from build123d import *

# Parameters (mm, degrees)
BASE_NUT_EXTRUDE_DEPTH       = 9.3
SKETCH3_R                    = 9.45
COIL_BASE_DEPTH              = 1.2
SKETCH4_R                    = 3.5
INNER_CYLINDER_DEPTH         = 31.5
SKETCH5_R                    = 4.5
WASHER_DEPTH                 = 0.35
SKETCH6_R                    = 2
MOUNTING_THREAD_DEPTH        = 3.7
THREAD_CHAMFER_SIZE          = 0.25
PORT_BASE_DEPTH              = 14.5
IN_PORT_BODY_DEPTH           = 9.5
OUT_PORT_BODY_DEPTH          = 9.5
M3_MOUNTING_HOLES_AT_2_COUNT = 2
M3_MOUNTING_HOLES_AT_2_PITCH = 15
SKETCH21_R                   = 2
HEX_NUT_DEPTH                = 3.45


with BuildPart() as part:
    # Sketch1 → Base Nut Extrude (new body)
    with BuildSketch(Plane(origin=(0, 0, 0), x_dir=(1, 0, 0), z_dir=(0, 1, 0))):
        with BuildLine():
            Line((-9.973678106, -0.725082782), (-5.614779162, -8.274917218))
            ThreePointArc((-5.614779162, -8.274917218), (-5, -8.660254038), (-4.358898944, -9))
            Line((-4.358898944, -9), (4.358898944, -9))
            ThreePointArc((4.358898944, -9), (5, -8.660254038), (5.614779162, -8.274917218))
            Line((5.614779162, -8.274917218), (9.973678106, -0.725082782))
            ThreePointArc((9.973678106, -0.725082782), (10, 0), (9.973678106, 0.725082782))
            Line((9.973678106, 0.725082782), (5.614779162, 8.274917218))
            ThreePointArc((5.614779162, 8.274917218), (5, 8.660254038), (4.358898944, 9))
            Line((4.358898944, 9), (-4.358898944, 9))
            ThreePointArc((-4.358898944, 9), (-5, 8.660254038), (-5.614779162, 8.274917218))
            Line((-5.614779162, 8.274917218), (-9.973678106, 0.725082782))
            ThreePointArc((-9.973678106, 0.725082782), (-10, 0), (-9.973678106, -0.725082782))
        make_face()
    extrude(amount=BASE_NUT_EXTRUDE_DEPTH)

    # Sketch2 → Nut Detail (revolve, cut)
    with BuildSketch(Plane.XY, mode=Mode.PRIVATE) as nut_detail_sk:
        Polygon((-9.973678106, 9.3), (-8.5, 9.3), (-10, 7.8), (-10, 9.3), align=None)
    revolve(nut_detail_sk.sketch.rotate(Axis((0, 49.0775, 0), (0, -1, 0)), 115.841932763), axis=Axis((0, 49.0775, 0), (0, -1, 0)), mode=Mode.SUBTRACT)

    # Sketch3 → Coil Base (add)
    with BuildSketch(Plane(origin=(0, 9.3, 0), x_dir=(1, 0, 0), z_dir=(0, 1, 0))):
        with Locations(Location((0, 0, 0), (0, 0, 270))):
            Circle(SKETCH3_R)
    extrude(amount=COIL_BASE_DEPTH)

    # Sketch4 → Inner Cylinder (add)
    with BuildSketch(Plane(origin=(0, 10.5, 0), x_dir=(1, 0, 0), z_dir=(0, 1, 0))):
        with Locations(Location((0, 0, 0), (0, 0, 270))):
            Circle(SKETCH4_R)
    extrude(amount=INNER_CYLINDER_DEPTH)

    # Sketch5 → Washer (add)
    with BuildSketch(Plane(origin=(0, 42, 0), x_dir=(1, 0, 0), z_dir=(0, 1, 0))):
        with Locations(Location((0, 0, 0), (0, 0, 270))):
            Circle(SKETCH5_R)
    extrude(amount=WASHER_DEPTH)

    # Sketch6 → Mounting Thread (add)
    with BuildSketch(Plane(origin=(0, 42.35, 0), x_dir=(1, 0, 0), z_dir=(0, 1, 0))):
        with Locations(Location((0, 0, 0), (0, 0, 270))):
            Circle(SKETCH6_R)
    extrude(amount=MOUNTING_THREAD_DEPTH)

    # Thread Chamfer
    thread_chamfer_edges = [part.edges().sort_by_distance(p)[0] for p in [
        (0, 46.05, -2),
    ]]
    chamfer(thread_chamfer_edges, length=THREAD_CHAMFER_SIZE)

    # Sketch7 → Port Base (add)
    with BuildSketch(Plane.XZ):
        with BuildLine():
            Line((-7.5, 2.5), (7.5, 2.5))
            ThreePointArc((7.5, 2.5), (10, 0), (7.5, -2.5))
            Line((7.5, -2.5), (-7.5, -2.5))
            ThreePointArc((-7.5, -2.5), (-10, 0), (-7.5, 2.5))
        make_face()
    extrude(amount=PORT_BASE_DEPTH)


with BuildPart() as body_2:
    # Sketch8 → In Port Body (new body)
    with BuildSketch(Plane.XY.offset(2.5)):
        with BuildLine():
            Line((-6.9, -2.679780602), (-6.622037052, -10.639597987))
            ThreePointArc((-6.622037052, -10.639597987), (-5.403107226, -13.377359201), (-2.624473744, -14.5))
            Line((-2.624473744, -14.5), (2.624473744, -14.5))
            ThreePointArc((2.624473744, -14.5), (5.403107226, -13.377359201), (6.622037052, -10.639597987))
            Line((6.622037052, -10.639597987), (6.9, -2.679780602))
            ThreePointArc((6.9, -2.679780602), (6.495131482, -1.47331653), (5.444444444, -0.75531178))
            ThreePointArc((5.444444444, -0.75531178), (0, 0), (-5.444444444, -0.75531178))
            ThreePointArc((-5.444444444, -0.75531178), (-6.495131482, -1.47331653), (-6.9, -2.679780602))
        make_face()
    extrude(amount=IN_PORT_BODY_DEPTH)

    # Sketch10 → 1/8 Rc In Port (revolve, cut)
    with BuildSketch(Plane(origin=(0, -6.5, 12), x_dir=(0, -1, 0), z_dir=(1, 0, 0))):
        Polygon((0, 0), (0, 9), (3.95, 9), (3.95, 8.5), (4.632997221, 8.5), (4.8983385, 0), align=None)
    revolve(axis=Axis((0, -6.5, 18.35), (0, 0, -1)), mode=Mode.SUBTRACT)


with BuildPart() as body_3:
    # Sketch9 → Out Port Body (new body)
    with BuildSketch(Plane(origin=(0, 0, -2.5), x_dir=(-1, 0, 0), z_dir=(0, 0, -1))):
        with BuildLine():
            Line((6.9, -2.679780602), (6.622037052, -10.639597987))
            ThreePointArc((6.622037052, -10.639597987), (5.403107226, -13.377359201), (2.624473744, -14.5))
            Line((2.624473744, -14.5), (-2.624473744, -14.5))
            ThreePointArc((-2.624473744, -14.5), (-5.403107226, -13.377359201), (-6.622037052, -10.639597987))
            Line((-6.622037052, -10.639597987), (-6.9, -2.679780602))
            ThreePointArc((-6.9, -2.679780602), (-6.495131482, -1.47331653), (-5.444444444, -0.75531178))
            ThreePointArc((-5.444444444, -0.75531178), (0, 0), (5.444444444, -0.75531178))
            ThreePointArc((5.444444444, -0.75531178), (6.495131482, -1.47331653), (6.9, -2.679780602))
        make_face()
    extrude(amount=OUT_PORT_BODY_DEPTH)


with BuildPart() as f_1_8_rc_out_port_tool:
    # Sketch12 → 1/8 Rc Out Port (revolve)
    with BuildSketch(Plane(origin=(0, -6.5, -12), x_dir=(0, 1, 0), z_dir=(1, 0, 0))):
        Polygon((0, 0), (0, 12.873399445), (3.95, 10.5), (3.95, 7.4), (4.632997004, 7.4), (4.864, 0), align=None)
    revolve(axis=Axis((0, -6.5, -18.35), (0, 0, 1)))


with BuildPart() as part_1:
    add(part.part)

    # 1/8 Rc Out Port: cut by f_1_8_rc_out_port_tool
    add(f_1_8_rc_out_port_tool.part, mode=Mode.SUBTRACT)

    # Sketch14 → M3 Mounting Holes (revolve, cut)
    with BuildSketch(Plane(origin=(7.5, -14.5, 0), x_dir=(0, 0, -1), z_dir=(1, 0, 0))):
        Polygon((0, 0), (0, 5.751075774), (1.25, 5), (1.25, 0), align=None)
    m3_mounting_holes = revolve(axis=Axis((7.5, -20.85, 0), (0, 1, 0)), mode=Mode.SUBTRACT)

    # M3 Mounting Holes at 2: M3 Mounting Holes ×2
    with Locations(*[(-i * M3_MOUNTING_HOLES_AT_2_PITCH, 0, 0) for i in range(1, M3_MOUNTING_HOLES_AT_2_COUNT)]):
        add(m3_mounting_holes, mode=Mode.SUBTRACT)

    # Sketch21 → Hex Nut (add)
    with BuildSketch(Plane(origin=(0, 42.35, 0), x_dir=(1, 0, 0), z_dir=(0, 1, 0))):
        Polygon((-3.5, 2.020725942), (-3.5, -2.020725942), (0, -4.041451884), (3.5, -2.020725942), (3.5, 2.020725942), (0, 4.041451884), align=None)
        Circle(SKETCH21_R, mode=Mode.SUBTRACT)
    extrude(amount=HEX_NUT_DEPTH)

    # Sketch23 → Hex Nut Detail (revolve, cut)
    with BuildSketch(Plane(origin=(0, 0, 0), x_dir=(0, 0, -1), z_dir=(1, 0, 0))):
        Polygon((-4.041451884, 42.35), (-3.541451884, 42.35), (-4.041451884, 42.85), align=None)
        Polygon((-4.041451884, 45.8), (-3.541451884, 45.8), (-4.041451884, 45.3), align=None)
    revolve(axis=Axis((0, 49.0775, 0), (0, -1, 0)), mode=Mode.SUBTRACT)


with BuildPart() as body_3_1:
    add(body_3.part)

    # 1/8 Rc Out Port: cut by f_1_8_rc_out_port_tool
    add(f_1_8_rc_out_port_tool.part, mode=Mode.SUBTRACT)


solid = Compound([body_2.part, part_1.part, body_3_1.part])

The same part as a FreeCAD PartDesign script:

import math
import FreeCAD as App
import Part
import Sketcher

V = App.Vector
Q = App.Units.Quantity


def edges_at(feature, points):
    """Names of the edges that pass closest to the given points."""
    edges = feature.Shape.Edges
    near = lambda p: min(range(len(edges)), key=lambda i: edges[i].distToShape(Part.Vertex(*p))[0])
    return sorted({f"Edge{near(p) + 1}" for p in points})


def add_polygon(sketch, points):
    """Adds a closed chain of lines whose ends are joined by coincident constraints."""
    first, n = sketch.GeometryCount, len(points)
    for a, b in zip(points, points[1:] + points[:1]):
        sketch.addGeometry(Part.LineSegment(App.Vector(*a, 0), App.Vector(*b, 0)), False)
    for i in range(n):
        sketch.addConstraint(Sketcher.Constraint("Coincident", first + i, 2, first + (i + 1) % n, 1))

doc = App.newDocument("Part")
body = doc.addObject("PartDesign::Body", "Body")

# Sketch on XZ plane
sketch1 = body.newObject("Sketcher::SketchObject", "Sketch")
sketch1.AttachmentSupport = (doc.getObject("XZ_Plane"), [""])
sketch1.MapMode = "FlatFace"
sketch1.addGeometry([
    Part.LineSegment(V(-10, 0.7, 0), V(-5.6, 8.3, 0)),  # 0
    Part.ArcOfCircle(Part.Circle(V(0, 0, 0), V(0, 0, 1), 10), math.radians(115.84), math.radians(124.16)),  # 1
    Part.LineSegment(V(-4.4, 9, 0), V(4.4, 9, 0)),  # 2
    Part.ArcOfCircle(Part.Circle(V(0, 0, 0), V(0, 0, 1), 10), math.radians(55.84), math.radians(64.16)),  # 3
    Part.LineSegment(V(5.6, 8.3, 0), V(10, 0.7, 0)),  # 4
    Part.ArcOfCircle(Part.Circle(V(0, 0, 0), V(0, 0, 1), 10), math.radians(-4.16), math.radians(4.16)),  # 5
    Part.LineSegment(V(10, -0.7, 0), V(5.6, -8.3, 0)),  # 6
    Part.ArcOfCircle(Part.Circle(V(0, 0, 0), V(0, 0, 1), 10), math.radians(-64.16), math.radians(-55.84)),  # 7
    Part.LineSegment(V(4.4, -9, 0), V(-4.4, -9, 0)),  # 8
    Part.ArcOfCircle(Part.Circle(V(0, 0, 0), V(0, 0, 1), 10), math.radians(-124.16), math.radians(-115.84)),  # 9
    Part.LineSegment(V(-5.6, -8.3, 0), V(-10, -0.7, 0)),  # 10
    Part.ArcOfCircle(Part.Circle(V(0, 0, 0), V(0, 0, 1), 10), math.radians(175.84), math.radians(184.16)),  # 11
], False)
sketch1.addConstraint([
    Sketcher.Constraint("Coincident", 0, 2, 1, 2),
    Sketcher.Constraint("Coincident", 1, 1, 2, 1),
    Sketcher.Constraint("Coincident", 2, 2, 3, 2),
    Sketcher.Constraint("Coincident", 3, 1, 4, 1),
    Sketcher.Constraint("Coincident", 4, 2, 5, 2),
    Sketcher.Constraint("Coincident", 5, 1, 6, 1),
    Sketcher.Constraint("Coincident", 6, 2, 7, 2),
    Sketcher.Constraint("Coincident", 7, 1, 8, 1),
    Sketcher.Constraint("Coincident", 8, 2, 9, 2),
    Sketcher.Constraint("Coincident", 9, 1, 10, 1),
    Sketcher.Constraint("Coincident", 10, 2, 11, 2),
    Sketcher.Constraint("Coincident", 11, 1, 0, 1),
    Sketcher.Constraint("Horizontal", 2),
    Sketcher.Constraint("Horizontal", 8),
    Sketcher.Constraint("Coincident", 1, 3, -1, 1),
    Sketcher.Constraint("Coincident", 3, 3, -1, 1),
    Sketcher.Constraint("Coincident", 5, 3, -1, 1),
    Sketcher.Constraint("Coincident", 7, 3, -1, 1),
    Sketcher.Constraint("Coincident", 9, 3, -1, 1),
    Sketcher.Constraint("Coincident", 11, 3, -1, 1),
    Sketcher.Constraint("Equal", 1, 3),
    Sketcher.Constraint("Equal", 3, 5),
    Sketcher.Constraint("Equal", 5, 7),
    Sketcher.Constraint("Equal", 7, 9),
    Sketcher.Constraint("Equal", 9, 11),
    Sketcher.Constraint("Parallel", 0, 6),
    Sketcher.Constraint("Parallel", 4, 10),
    Sketcher.Constraint("Horizontal", 0, 2, 3, 1),
    Sketcher.Constraint("Horizontal", 6, 2, 9, 1),
    Sketcher.Constraint("Horizontal", 5, 1, 10, 2),
    Sketcher.Constraint("Vertical", 4, 2, 5, 1),
    Sketcher.Constraint("Vertical", 2, 2, 7, 1),
    Sketcher.Constraint("Radius", 1, Q("10 mm")),
    Sketcher.Constraint("Angle", 0, Q("60 deg")),
    Sketcher.Constraint("DistanceY", -1, 1, 1, 1, Q("9 mm")),
    Sketcher.Constraint("DistanceY", 5, 1, 3, 1, Q("9 mm")),
])
pad1 = body.newObject("PartDesign::Pad", "Pad")
pad1.Profile = sketch1
pad1.Length = 9.3
pad1.Reversed = True

# Sketch on XY plane
sketch2 = body.newObject("Sketcher::SketchObject", "Sketch001")
sketch2.AttachmentSupport = (doc.getObject("XY_Plane"), [""])
sketch2.MapMode = "FlatFace"
add_polygon(sketch2, [(-8.5, 9.3), (-10, 9.3), (-10, 7.8)])  # lines 0-2
sketch2.addConstraint([
    Sketcher.Constraint("Horizontal", 0),
    Sketcher.Constraint("Vertical", 1),
    Sketcher.Constraint("Equal", 0, 1),
    Sketcher.Constraint("DistanceX", 0, 2, 0, 1, Q("1.5 mm")),
    Sketcher.Constraint("DistanceX", 0, 2, -1, 1, Q("10 mm")),
    Sketcher.Constraint("DistanceY", -1, 1, 0, 2, Q("9.3 mm")),
])
groove = body.newObject("PartDesign::Groove", "Groove")
groove.Profile = sketch2
groove.ReferenceAxis = (sketch2, ["V_Axis"])
groove.Angle = 360

# Sketch on XZ plane
sketch3 = body.newObject("Sketcher::SketchObject", "Sketch002")
sketch3.AttachmentSupport = (doc.getObject("XZ_Plane"), [""])
sketch3.MapMode = "FlatFace"
sketch3.AttachmentOffset = App.Placement(V(0, 0, -9.3), App.Rotation())
sketch3.addGeometry(Part.Circle(V(0, 0, 0), V(0, 0, 1), 9), False)
sketch3.addConstraint([
    Sketcher.Constraint("Coincident", 0, 3, -1, 1),
    Sketcher.Constraint("Diameter", 0, Q("18.9 mm")),
])
pad2 = body.newObject("PartDesign::Pad", "Pad001")
pad2.Profile = sketch3
pad2.Length = 1.2
pad2.Reversed = True

# Sketch on XZ plane
sketch4 = body.newObject("Sketcher::SketchObject", "Sketch003")
sketch4.AttachmentSupport = (doc.getObject("XZ_Plane"), [""])
sketch4.MapMode = "FlatFace"
sketch4.AttachmentOffset = App.Placement(V(0, 0, -10.5), App.Rotation())
sketch4.addGeometry(Part.Circle(V(0, 0, 0), V(0, 0, 1), 3.5), False)
sketch4.addConstraint([
    Sketcher.Constraint("Coincident", 0, 3, -1, 1),
    Sketcher.Constraint("Diameter", 0, Q("7 mm")),
])
pad3 = body.newObject("PartDesign::Pad", "Pad002")
pad3.Profile = sketch4
pad3.Length = 31.5
pad3.Reversed = True

# Sketch on XZ plane
sketch5 = body.newObject("Sketcher::SketchObject", "Sketch004")
sketch5.AttachmentSupport = (doc.getObject("XZ_Plane"), [""])
sketch5.MapMode = "FlatFace"
sketch5.AttachmentOffset = App.Placement(V(0, 0, -42), App.Rotation())
sketch5.addGeometry(Part.Circle(V(0, 0, 0), V(0, 0, 1), 4.5), False)
sketch5.addConstraint([
    Sketcher.Constraint("Coincident", 0, 3, -1, 1),
    Sketcher.Constraint("Diameter", 0, Q("9 mm")),
])
pad4 = body.newObject("PartDesign::Pad", "Pad003")
pad4.Profile = sketch5
pad4.Length = 0.35
pad4.Reversed = True

# Sketch on XZ plane
sketch6 = body.newObject("Sketcher::SketchObject", "Sketch005")
sketch6.AttachmentSupport = (doc.getObject("XZ_Plane"), [""])
sketch6.MapMode = "FlatFace"
sketch6.AttachmentOffset = App.Placement(V(0, 0, -42.35), App.Rotation())
sketch6.addGeometry(Part.Circle(V(0, 0, 0), V(0, 0, 1), 2), False)
sketch6.addConstraint([
    Sketcher.Constraint("Coincident", 0, 3, -1, 1),
    Sketcher.Constraint("Diameter", 0, Q("4 mm")),
])
pad5 = body.newObject("PartDesign::Pad", "Pad004")
pad5.Profile = sketch6
pad5.Length = 3.7
pad5.Reversed = True
doc.recompute()

chamfer = body.newObject("PartDesign::Chamfer", "Chamfer")
chamfer.Base = (pad5, edges_at(pad5, [(0, 46.05, -2)]))
chamfer.Size = 0.25

# Sketch on XZ plane
sketch7 = body.newObject("Sketcher::SketchObject", "Sketch006")
sketch7.AttachmentSupport = (doc.getObject("XZ_Plane"), [""])
sketch7.MapMode = "FlatFace"
sketch7.addGeometry([
    Part.LineSegment(V(7.5, 2.5, 0), V(-7.5, 2.5, 0)),
    Part.ArcOfCircle(Part.Circle(V(-7.5, 0, 0), V(0, 0, 1), 2.5), math.radians(90), math.radians(270)),
    Part.LineSegment(V(-7.5, -2.5, 0), V(7.5, -2.5, 0)),
    Part.ArcOfCircle(Part.Circle(V(7.5, 0, 0), V(0, 0, 1), 2.5), math.radians(-90), math.radians(90)),
], False)
sketch7.addConstraint([
    Sketcher.Constraint("Tangent", 0, 2, 1, 1),
    Sketcher.Constraint("Tangent", 1, 2, 2, 1),
    Sketcher.Constraint("Tangent", 2, 2, 3, 1),
    Sketcher.Constraint("Tangent", 3, 2, 0, 1),
    Sketcher.Constraint("Horizontal", 0),
    Sketcher.Constraint("Horizontal", 2),
    Sketcher.Constraint("Symmetric", 1, 3, 3, 3, -1, 1),
    Sketcher.Constraint("Radius", 1, Q("2.5 mm")),
    Sketcher.Constraint("DistanceX", 0, 2, 0, 1, Q("15 mm")),
])
pad6 = body.newObject("PartDesign::Pad", "Pad005")
pad6.Profile = sketch7
pad6.Length = 14.5
body2 = doc.addObject("PartDesign::Body", "Body001")

# Sketch on XY plane
sketch8 = body2.newObject("Sketcher::SketchObject", "Sketch007")
sketch8.AttachmentSupport = (doc.getObject("XY_Plane001"), [""])
sketch8.MapMode = "FlatFace"
sketch8.AttachmentOffset = App.Placement(V(0, 0, 2.5), App.Rotation())
sketch8.addGeometry([
    Part.LineSegment(V(-6.9, -2.7, 0), V(-6.6, -10.6, 0)),  # 0
    Part.ArcOfCircle(Part.Circle(V(-2.6, -10.5, 0), V(0, 0, 1), 4), math.radians(-178), math.radians(-90)),  # 1
    Part.LineSegment(V(-2.6, -14.5, 0), V(2.6, -14.5, 0)),  # 2
    Part.ArcOfCircle(Part.Circle(V(2.6, -10.5, 0), V(0, 0, 1), 4), math.radians(-90), math.radians(-2)),  # 3
    Part.LineSegment(V(6.6, -10.6, 0), V(6.9, -2.7, 0)),  # 4
    Part.ArcOfCircle(Part.Circle(V(4.9, -2.7, 0), V(0, 0, 1), 2), math.radians(0), math.radians(74)),  # 5
    Part.ArcOfCircle(Part.Circle(V(0, -20, 0), V(0, 0, 1), 20), math.radians(74), math.radians(106)),  # 6
    Part.ArcOfCircle(Part.Circle(V(-4.9, -2.7, 0), V(0, 0, 1), 2), math.radians(106), math.radians(180)),  # 7
], False)
sketch8.addConstraint([
    Sketcher.Constraint("Tangent", 0, 2, 1, 1),
    Sketcher.Constraint("Tangent", 1, 2, 2, 1),
    Sketcher.Constraint("Tangent", 2, 2, 3, 1),
    Sketcher.Constraint("Tangent", 3, 2, 4, 1),
    Sketcher.Constraint("Coincident", 4, 2, 5, 1),
    Sketcher.Constraint("Tangent", 5, 2, 6, 1),
    Sketcher.Constraint("Tangent", 6, 2, 7, 1),
    Sketcher.Constraint("Coincident", 7, 2, 0, 1),
    Sketcher.Constraint("Horizontal", 2),
    Sketcher.Constraint("Equal", 1, 3),
    Sketcher.Constraint("Equal", 5, 7),
    Sketcher.Constraint("Symmetric", 5, 3, 7, 3, -2),
    Sketcher.Constraint("Symmetric", 0, 2, 3, 2, -2),
    Sketcher.Constraint("Horizontal", 7, 3, 4, 2),
    Sketcher.Constraint("Radius", 1, Q("4 mm")),
    Sketcher.Constraint("Radius", 5, Q("2 mm")),
    Sketcher.Constraint("Radius", 6, Q("20 mm")),
    Sketcher.Constraint("Angle", 0, Q("-88 deg")),
    Sketcher.Constraint("DistanceY", 6, 3, -1, 1, Q("20 mm")),
    Sketcher.Constraint("DistanceY", 1, 3, -1, 1, Q("10.5 mm")),
    Sketcher.Constraint("DistanceX", -1, 1, 5, 3, Q("4.9 mm")),
])
pad7 = body2.newObject("PartDesign::Pad", "Pad006")
pad7.Profile = sketch8
pad7.Length = 9.5

# Sketch on YZ plane
sketch9 = body2.newObject("Sketcher::SketchObject", "Sketch008")
sketch9.AttachmentSupport = (doc.getObject("YZ_Plane001"), [""])
sketch9.MapMode = "FlatFace"
add_polygon(sketch9, [(-6.5, 3), (-6.5, 12), (-11.4, 12), (-11.1, 3.5), (-10.4, 3.5), (-10.4, 3)])  # lines 0-5
sketch9.addGeometry(Part.LineSegment(V(-6.5, 12, 0), V(-6.5, 3, 0)), True)  # axis
sketch9.addConstraint([
    Sketcher.Constraint("Vertical", 0),
    Sketcher.Constraint("Horizontal", 1),
    Sketcher.Constraint("Horizontal", 3),
    Sketcher.Constraint("Vertical", 4),
    Sketcher.Constraint("Horizontal", 5),
    Sketcher.Constraint("Vertical", 6),
    Sketcher.Constraint("Coincident", 6, 1, 0, 2),
    Sketcher.Constraint("Horizontal", 4, 2, 6, 2),
    Sketcher.Constraint("DistanceY", 0, 1, 0, 2, Q("9 mm")),
    Sketcher.Constraint("DistanceY", 4, 2, 4, 1, Q("0.5 mm")),
    Sketcher.Constraint("DistanceY", -1, 1, 0, 2, Q("12 mm")),
    Sketcher.Constraint("DistanceX", 5, 1, 5, 2, Q("3.95 mm")),
    Sketcher.Constraint("DistanceX", 0, 2, -1, 1, Q("6.5 mm")),
    Sketcher.Constraint("DistanceX", 1, 2, 1, 1, Q("4.898338 mm")),
    Sketcher.Constraint("Distance", 2, Q("8.504141 mm")),
])
groove2 = body2.newObject("PartDesign::Groove", "Groove001")
groove2.Profile = sketch9
groove2.ReferenceAxis = (sketch9, ["Axis0"])
groove2.Angle = 360
body3 = doc.addObject("PartDesign::Body", "Body002")

# Sketch on XY plane
sketch10 = body3.newObject("Sketcher::SketchObject", "Sketch009")
sketch10.AttachmentSupport = (doc.getObject("XY_Plane002"), [""])
sketch10.MapMode = "FlatFace"
sketch10.AttachmentOffset = App.Placement(V(0, 0, -2.5), App.Rotation())
sketch10.addGeometry([
    Part.LineSegment(V(-6.6, -10.6, 0), V(-6.9, -2.7, 0)),  # 0
    Part.ArcOfCircle(Part.Circle(V(-4.9, -2.7, 0), V(0, 0, 1), 2), math.radians(106), math.radians(180)),  # 1
    Part.ArcOfCircle(Part.Circle(V(0, -20, 0), V(0, 0, 1), 20), math.radians(74), math.radians(106)),  # 2
    Part.ArcOfCircle(Part.Circle(V(4.9, -2.7, 0), V(0, 0, 1), 2), math.radians(0), math.radians(74)),  # 3
    Part.LineSegment(V(6.9, -2.7, 0), V(6.6, -10.6, 0)),  # 4
    Part.ArcOfCircle(Part.Circle(V(2.6, -10.5, 0), V(0, 0, 1), 4), math.radians(-90), math.radians(-2)),  # 5
    Part.LineSegment(V(2.6, -14.5, 0), V(-2.6, -14.5, 0)),  # 6
    Part.ArcOfCircle(Part.Circle(V(-2.6, -10.5, 0), V(0, 0, 1), 4), math.radians(-178), math.radians(-90)),  # 7
], False)
sketch10.addConstraint([
    Sketcher.Constraint("Coincident", 0, 2, 1, 2),
    Sketcher.Constraint("Tangent", 1, 1, 2, 2),
    Sketcher.Constraint("Tangent", 2, 1, 3, 2),
    Sketcher.Constraint("Coincident", 3, 1, 4, 1),
    Sketcher.Constraint("Tangent", 4, 2, 5, 2),
    Sketcher.Constraint("Tangent", 5, 1, 6, 1),
    Sketcher.Constraint("Tangent", 6, 2, 7, 2),
    Sketcher.Constraint("Tangent", 7, 1, 0, 1),
    Sketcher.Constraint("Horizontal", 6),
    Sketcher.Constraint("Equal", 1, 3),
    Sketcher.Constraint("Equal", 5, 7),
    Sketcher.Constraint("Symmetric", 1, 3, 3, 3, -2),
    Sketcher.Constraint("Symmetric", 4, 2, 7, 1, -2),
    Sketcher.Constraint("Horizontal", 3, 3, 0, 2),
    Sketcher.Constraint("Radius", 1, Q("2 mm")),
    Sketcher.Constraint("Radius", 2, Q("20 mm")),
    Sketcher.Constraint("Radius", 5, Q("4 mm")),
    Sketcher.Constraint("Angle", 0, Q("92 deg")),
    Sketcher.Constraint("DistanceY", 2, 3, -1, 1, Q("20 mm")),
    Sketcher.Constraint("DistanceX", 1, 3, -1, 1, Q("4.9 mm")),
    Sketcher.Constraint("DistanceY", 5, 3, -1, 1, Q("10.5 mm")),
])
pad8 = body3.newObject("PartDesign::Pad", "Pad007")
pad8.Profile = sketch10
pad8.Length = 9.5
pad8.Reversed = True
body4 = doc.addObject("PartDesign::Body", "Body003")

# Sketch on YZ plane
sketch11 = body4.newObject("Sketcher::SketchObject", "Sketch010")
sketch11.AttachmentSupport = (doc.getObject("YZ_Plane003"), [""])
sketch11.MapMode = "FlatFace"
add_polygon(sketch11, [(-6.5, 0.9), (-6.5, -12), (-1.6, -12), (-1.9, -4.6), (-2.5, -4.6), (-2.5, -1.5)])  # lines 0-5
sketch11.addGeometry(Part.LineSegment(V(-6.5, -12, 0), V(-6.5, 0.9, 0)), True)  # axis
sketch11.addConstraint([
    Sketcher.Constraint("Vertical", 0),
    Sketcher.Constraint("Horizontal", 1),
    Sketcher.Constraint("Horizontal", 3),
    Sketcher.Constraint("Vertical", 4),
    Sketcher.Constraint("Vertical", 6),
    Sketcher.Constraint("Coincident", 6, 1, 0, 2),
    Sketcher.Constraint("Equal", 0, 6),
    Sketcher.Constraint("Angle", 5, Q("149 deg")),
    Sketcher.Constraint("DistanceY", 4, 1, 4, 2, Q("3.1 mm")),
    Sketcher.Constraint("DistanceY", 0, 2, -1, 1, Q("12 mm")),
    Sketcher.Constraint("DistanceX", 0, 2, -1, 1, Q("6.5 mm")),
    Sketcher.Constraint("DistanceY", 2, 2, -1, 1, Q("4.6 mm")),
    Sketcher.Constraint("DistanceX", 1, 1, 1, 2, Q("4.864 mm")),
    Sketcher.Constraint("DistanceX", 3, 2, -1, 1, Q("2.55 mm")),
    Sketcher.Constraint("DistanceX", 3, 2, 3, 1, Q("0.682997 mm")),
])
revolution = body4.newObject("PartDesign::Revolution", "Revolution")
revolution.Profile = sketch11
revolution.ReferenceAxis = (sketch11, ["Axis0"])
revolution.Angle = 360
doc.recompute()

body5 = doc.addObject("PartDesign::Body", "Body004")
body5.BaseFeature = body4
boolean = body.newObject("PartDesign::Boolean", "Boolean")
boolean.Type = "Cut"
boolean.addObjects([body5])
doc.recompute()

# Sketch on YZ plane
sketch12 = body.newObject("Sketcher::SketchObject", "Sketch011")
sketch12.AttachmentSupport = (doc.getObject("YZ_Plane"), [""])
sketch12.MapMode = "FlatFace"
sketch12.AttachmentOffset = App.Placement(V(0, 0, 7.5), App.Rotation())
add_polygon(sketch12, [(-8.7, 0), (-14.5, 0), (-14.5, -1.2), (-9.5, -1.2)])  # lines 0-3
sketch12.addConstraint([
    Sketcher.Constraint("Horizontal", 0),
    Sketcher.Constraint("Vertical", 1),
    Sketcher.Constraint("Horizontal", 2),
    Sketcher.Constraint("PointOnObject", 0, 2, -1),
    Sketcher.Constraint("DistanceX", 2, 1, 2, 2, Q("5 mm")),
    Sketcher.Constraint("Angle", 3, Q("59 deg")),
    Sketcher.Constraint("DistanceY", 1, 2, 1, 1, Q("1.25 mm")),
    Sketcher.Constraint("DistanceX", 0, 2, -1, 1, Q("14.5 mm")),
])
groove3 = body.newObject("PartDesign::Groove", "Groove002")
groove3.Profile = sketch12
groove3.ReferenceAxis = (sketch12, ["H_Axis"])
groove3.Angle = 360
doc.recompute()

linearpattern = body.newObject("PartDesign::LinearPattern", "LinearPattern")
linearpattern.Originals = [groove3]
linearpattern.Direction = (doc.getObject("X_Axis"), [""])
linearpattern.Mode = "offset"
linearpattern.Offset = 15
linearpattern.Occurrences = 2
linearpattern.Reversed = True
body.Tip = linearpattern

# Sketch on XZ plane
sketch13 = body.newObject("Sketcher::SketchObject", "Sketch012")
sketch13.AttachmentSupport = (doc.getObject("XZ_Plane"), [""])
sketch13.MapMode = "FlatFace"
sketch13.AttachmentOffset = App.Placement(V(0, 0, -42.35), App.Rotation())
add_polygon(sketch13, [(-3.5, -2), (-3.5, 2), (0, 4), (3.5, 2), (3.5, -2), (0, -4)])  # lines 0-5
sketch13.addGeometry(Part.Circle(V(0, 0, 0), V(0, 0, 1), 2), False)  # 6
sketch13.addConstraint([
    Sketcher.Constraint("Vertical", 0),
    Sketcher.Constraint("Vertical", 3),
    Sketcher.Constraint("Coincident", 6, 3, -1, 1),
    Sketcher.Constraint("Symmetric", 0, 2, 3, 2, -1, 1),
    Sketcher.Constraint("Symmetric", 1, 2, 4, 2, -1, 1),
    Sketcher.Constraint("PointOnObject", 1, 2, -2),
    Sketcher.Constraint("Parallel", 2, 5),
    Sketcher.Constraint("Horizontal", 0, 2, 2, 2),
    Sketcher.Constraint("Diameter", 6, Q("4 mm")),
    Sketcher.Constraint("Angle", 1, Q("30 deg")),
    Sketcher.Constraint("DistanceX", 0, 2, 2, 2, Q("7 mm")),
    Sketcher.Constraint("DistanceY", 0, 1, 0, 2, Q("4.041452 mm")),
])
pad9 = body.newObject("PartDesign::Pad", "Pad008")
pad9.Profile = sketch13
pad9.Length = 3.45
pad9.Reversed = True

# Sketch on YZ plane
sketch14 = body.newObject("Sketcher::SketchObject", "Sketch013")
sketch14.AttachmentSupport = (doc.getObject("YZ_Plane"), [""])
sketch14.MapMode = "FlatFace"
add_polygon(sketch14, [(42.35, 4.04), (42.35, 3.54), (42.85, 4.04)])  # lines 0-2
add_polygon(sketch14, [(45.8, 3.54), (45.8, 4.04), (45.3, 4.04)])  # lines 3-5
sketch14.addConstraint([
    Sketcher.Constraint("Vertical", 0),
    Sketcher.Constraint("Horizontal", 2),
    Sketcher.Constraint("Vertical", 3),
    Sketcher.Constraint("Horizontal", 4),
    Sketcher.Constraint("Perpendicular", 1, 5),
    Sketcher.Constraint("Horizontal", 2, 2, 3, 2),
    Sketcher.Constraint("Horizontal", 0, 2, 5, 2),
    Sketcher.Constraint("Equal", 2, 4),
    Sketcher.Constraint("DistanceX", 2, 2, 2, 1, Q("0.5 mm")),
    Sketcher.Constraint("DistanceX", -1, 1, 3, 2, Q("45.8 mm")),
    Sketcher.Constraint("DistanceX", -1, 1, 0, 2, Q("42.35 mm")),
    Sketcher.Constraint("DistanceY", -1, 1, 0, 2, Q("3.541452 mm")),
])
groove4 = body.newObject("PartDesign::Groove", "Groove003")
groove4.Profile = sketch14
groove4.ReferenceAxis = (sketch14, ["H_Axis"])
groove4.Angle = 360
doc.recompute()

boolean2 = body3.newObject("PartDesign::Boolean", "Boolean001")
boolean2.Type = "Cut"
boolean2.addObjects([body4])

doc.recompute()
